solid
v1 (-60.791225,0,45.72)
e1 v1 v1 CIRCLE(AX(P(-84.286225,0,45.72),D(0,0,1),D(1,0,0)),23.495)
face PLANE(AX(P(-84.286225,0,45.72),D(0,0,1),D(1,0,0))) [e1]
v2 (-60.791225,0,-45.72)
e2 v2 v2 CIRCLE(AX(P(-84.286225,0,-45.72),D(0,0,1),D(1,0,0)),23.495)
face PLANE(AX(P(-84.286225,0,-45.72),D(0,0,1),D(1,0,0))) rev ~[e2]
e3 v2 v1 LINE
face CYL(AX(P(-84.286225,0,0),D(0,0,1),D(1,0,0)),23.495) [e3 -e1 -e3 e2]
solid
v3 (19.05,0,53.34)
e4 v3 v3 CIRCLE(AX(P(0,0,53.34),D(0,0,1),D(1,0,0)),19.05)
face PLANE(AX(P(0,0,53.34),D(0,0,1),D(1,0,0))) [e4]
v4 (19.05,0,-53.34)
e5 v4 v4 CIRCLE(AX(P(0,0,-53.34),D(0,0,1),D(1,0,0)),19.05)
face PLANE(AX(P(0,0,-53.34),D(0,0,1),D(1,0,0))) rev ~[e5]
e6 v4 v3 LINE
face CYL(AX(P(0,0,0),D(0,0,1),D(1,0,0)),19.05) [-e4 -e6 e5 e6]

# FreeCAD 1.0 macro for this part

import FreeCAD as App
import Part
import Sketcher
from FreeCAD import Vector
Q = App.Units.Quantity

doc = App.newDocument("Part")
params = doc.addObject("Spreadsheet::Sheet", "Params")
for row, (alias, value) in enumerate([
    ("sketch1_diameter", "1.5 in"),
    ("pad1_length", "4.2 in"),
    ("sketch2_diameter", "1.85 in"),
    ("pad2_length", "3.6 in"),
], start=1):
    params.set(f"A{row}", alias)
    params.set(f"B{row}", "=" + value)
    params.setAlias(f"B{row}", alias)

body = doc.addObject("PartDesign::Body", "Body")

# Sketch on XY plane
sketch1 = body.newObject("Sketcher::SketchObject", "Sketch")
sketch1.AttachmentSupport = (doc.getObject("XY_Plane"), [""])
sketch1.MapMode = "FlatFace"
sketch1.addGeometry(Part.Circle(Vector(0, 0, 0), Vector(0, 0, 1), 19), False)
sketch1.addConstraint(Sketcher.Constraint("Coincident", 0, 3, -1, 1))
sketch1.addConstraint(Sketcher.Constraint("Diameter", 0, Q("1.5 in")))
sketch1.setExpression("Constraints[1]", "Params.sketch1_diameter")
pad1 = body.newObject("PartDesign::Pad", "Pad")
pad1.Profile = sketch1
pad1.setExpression("Length", "Params.pad1_length")
pad1.Midplane = True
body2 = doc.addObject("PartDesign::Body", "Body001")

# Sketch on XY plane
sketch2 = body2.newObject("Sketcher::SketchObject", "Sketch001")
sketch2.AttachmentSupport = (doc.getObject("XY_Plane001"), [""])
sketch2.MapMode = "FlatFace"
sketch2.addGeometry(Part.Circle(Vector(-84, 0, 0), Vector(0, 0, 1), 23), False)
sketch2.addConstraint(Sketcher.Constraint("PointOnObject", 0, 3, -1))
sketch2.addConstraint(Sketcher.Constraint("Diameter", 0, Q("1.85 in")))
sketch2.addConstraint(Sketcher.Constraint("DistanceX", 0, 3, -1, 1, 84.286225))
sketch2.setExpression("Constraints[1]", "Params.sketch2_diameter")
pad2 = body2.newObject("PartDesign::Pad", "Pad001")
pad2.Profile = sketch2
pad2.setExpression("Length", "Params.pad2_length")
pad2.Midplane = True

doc.recompute()
